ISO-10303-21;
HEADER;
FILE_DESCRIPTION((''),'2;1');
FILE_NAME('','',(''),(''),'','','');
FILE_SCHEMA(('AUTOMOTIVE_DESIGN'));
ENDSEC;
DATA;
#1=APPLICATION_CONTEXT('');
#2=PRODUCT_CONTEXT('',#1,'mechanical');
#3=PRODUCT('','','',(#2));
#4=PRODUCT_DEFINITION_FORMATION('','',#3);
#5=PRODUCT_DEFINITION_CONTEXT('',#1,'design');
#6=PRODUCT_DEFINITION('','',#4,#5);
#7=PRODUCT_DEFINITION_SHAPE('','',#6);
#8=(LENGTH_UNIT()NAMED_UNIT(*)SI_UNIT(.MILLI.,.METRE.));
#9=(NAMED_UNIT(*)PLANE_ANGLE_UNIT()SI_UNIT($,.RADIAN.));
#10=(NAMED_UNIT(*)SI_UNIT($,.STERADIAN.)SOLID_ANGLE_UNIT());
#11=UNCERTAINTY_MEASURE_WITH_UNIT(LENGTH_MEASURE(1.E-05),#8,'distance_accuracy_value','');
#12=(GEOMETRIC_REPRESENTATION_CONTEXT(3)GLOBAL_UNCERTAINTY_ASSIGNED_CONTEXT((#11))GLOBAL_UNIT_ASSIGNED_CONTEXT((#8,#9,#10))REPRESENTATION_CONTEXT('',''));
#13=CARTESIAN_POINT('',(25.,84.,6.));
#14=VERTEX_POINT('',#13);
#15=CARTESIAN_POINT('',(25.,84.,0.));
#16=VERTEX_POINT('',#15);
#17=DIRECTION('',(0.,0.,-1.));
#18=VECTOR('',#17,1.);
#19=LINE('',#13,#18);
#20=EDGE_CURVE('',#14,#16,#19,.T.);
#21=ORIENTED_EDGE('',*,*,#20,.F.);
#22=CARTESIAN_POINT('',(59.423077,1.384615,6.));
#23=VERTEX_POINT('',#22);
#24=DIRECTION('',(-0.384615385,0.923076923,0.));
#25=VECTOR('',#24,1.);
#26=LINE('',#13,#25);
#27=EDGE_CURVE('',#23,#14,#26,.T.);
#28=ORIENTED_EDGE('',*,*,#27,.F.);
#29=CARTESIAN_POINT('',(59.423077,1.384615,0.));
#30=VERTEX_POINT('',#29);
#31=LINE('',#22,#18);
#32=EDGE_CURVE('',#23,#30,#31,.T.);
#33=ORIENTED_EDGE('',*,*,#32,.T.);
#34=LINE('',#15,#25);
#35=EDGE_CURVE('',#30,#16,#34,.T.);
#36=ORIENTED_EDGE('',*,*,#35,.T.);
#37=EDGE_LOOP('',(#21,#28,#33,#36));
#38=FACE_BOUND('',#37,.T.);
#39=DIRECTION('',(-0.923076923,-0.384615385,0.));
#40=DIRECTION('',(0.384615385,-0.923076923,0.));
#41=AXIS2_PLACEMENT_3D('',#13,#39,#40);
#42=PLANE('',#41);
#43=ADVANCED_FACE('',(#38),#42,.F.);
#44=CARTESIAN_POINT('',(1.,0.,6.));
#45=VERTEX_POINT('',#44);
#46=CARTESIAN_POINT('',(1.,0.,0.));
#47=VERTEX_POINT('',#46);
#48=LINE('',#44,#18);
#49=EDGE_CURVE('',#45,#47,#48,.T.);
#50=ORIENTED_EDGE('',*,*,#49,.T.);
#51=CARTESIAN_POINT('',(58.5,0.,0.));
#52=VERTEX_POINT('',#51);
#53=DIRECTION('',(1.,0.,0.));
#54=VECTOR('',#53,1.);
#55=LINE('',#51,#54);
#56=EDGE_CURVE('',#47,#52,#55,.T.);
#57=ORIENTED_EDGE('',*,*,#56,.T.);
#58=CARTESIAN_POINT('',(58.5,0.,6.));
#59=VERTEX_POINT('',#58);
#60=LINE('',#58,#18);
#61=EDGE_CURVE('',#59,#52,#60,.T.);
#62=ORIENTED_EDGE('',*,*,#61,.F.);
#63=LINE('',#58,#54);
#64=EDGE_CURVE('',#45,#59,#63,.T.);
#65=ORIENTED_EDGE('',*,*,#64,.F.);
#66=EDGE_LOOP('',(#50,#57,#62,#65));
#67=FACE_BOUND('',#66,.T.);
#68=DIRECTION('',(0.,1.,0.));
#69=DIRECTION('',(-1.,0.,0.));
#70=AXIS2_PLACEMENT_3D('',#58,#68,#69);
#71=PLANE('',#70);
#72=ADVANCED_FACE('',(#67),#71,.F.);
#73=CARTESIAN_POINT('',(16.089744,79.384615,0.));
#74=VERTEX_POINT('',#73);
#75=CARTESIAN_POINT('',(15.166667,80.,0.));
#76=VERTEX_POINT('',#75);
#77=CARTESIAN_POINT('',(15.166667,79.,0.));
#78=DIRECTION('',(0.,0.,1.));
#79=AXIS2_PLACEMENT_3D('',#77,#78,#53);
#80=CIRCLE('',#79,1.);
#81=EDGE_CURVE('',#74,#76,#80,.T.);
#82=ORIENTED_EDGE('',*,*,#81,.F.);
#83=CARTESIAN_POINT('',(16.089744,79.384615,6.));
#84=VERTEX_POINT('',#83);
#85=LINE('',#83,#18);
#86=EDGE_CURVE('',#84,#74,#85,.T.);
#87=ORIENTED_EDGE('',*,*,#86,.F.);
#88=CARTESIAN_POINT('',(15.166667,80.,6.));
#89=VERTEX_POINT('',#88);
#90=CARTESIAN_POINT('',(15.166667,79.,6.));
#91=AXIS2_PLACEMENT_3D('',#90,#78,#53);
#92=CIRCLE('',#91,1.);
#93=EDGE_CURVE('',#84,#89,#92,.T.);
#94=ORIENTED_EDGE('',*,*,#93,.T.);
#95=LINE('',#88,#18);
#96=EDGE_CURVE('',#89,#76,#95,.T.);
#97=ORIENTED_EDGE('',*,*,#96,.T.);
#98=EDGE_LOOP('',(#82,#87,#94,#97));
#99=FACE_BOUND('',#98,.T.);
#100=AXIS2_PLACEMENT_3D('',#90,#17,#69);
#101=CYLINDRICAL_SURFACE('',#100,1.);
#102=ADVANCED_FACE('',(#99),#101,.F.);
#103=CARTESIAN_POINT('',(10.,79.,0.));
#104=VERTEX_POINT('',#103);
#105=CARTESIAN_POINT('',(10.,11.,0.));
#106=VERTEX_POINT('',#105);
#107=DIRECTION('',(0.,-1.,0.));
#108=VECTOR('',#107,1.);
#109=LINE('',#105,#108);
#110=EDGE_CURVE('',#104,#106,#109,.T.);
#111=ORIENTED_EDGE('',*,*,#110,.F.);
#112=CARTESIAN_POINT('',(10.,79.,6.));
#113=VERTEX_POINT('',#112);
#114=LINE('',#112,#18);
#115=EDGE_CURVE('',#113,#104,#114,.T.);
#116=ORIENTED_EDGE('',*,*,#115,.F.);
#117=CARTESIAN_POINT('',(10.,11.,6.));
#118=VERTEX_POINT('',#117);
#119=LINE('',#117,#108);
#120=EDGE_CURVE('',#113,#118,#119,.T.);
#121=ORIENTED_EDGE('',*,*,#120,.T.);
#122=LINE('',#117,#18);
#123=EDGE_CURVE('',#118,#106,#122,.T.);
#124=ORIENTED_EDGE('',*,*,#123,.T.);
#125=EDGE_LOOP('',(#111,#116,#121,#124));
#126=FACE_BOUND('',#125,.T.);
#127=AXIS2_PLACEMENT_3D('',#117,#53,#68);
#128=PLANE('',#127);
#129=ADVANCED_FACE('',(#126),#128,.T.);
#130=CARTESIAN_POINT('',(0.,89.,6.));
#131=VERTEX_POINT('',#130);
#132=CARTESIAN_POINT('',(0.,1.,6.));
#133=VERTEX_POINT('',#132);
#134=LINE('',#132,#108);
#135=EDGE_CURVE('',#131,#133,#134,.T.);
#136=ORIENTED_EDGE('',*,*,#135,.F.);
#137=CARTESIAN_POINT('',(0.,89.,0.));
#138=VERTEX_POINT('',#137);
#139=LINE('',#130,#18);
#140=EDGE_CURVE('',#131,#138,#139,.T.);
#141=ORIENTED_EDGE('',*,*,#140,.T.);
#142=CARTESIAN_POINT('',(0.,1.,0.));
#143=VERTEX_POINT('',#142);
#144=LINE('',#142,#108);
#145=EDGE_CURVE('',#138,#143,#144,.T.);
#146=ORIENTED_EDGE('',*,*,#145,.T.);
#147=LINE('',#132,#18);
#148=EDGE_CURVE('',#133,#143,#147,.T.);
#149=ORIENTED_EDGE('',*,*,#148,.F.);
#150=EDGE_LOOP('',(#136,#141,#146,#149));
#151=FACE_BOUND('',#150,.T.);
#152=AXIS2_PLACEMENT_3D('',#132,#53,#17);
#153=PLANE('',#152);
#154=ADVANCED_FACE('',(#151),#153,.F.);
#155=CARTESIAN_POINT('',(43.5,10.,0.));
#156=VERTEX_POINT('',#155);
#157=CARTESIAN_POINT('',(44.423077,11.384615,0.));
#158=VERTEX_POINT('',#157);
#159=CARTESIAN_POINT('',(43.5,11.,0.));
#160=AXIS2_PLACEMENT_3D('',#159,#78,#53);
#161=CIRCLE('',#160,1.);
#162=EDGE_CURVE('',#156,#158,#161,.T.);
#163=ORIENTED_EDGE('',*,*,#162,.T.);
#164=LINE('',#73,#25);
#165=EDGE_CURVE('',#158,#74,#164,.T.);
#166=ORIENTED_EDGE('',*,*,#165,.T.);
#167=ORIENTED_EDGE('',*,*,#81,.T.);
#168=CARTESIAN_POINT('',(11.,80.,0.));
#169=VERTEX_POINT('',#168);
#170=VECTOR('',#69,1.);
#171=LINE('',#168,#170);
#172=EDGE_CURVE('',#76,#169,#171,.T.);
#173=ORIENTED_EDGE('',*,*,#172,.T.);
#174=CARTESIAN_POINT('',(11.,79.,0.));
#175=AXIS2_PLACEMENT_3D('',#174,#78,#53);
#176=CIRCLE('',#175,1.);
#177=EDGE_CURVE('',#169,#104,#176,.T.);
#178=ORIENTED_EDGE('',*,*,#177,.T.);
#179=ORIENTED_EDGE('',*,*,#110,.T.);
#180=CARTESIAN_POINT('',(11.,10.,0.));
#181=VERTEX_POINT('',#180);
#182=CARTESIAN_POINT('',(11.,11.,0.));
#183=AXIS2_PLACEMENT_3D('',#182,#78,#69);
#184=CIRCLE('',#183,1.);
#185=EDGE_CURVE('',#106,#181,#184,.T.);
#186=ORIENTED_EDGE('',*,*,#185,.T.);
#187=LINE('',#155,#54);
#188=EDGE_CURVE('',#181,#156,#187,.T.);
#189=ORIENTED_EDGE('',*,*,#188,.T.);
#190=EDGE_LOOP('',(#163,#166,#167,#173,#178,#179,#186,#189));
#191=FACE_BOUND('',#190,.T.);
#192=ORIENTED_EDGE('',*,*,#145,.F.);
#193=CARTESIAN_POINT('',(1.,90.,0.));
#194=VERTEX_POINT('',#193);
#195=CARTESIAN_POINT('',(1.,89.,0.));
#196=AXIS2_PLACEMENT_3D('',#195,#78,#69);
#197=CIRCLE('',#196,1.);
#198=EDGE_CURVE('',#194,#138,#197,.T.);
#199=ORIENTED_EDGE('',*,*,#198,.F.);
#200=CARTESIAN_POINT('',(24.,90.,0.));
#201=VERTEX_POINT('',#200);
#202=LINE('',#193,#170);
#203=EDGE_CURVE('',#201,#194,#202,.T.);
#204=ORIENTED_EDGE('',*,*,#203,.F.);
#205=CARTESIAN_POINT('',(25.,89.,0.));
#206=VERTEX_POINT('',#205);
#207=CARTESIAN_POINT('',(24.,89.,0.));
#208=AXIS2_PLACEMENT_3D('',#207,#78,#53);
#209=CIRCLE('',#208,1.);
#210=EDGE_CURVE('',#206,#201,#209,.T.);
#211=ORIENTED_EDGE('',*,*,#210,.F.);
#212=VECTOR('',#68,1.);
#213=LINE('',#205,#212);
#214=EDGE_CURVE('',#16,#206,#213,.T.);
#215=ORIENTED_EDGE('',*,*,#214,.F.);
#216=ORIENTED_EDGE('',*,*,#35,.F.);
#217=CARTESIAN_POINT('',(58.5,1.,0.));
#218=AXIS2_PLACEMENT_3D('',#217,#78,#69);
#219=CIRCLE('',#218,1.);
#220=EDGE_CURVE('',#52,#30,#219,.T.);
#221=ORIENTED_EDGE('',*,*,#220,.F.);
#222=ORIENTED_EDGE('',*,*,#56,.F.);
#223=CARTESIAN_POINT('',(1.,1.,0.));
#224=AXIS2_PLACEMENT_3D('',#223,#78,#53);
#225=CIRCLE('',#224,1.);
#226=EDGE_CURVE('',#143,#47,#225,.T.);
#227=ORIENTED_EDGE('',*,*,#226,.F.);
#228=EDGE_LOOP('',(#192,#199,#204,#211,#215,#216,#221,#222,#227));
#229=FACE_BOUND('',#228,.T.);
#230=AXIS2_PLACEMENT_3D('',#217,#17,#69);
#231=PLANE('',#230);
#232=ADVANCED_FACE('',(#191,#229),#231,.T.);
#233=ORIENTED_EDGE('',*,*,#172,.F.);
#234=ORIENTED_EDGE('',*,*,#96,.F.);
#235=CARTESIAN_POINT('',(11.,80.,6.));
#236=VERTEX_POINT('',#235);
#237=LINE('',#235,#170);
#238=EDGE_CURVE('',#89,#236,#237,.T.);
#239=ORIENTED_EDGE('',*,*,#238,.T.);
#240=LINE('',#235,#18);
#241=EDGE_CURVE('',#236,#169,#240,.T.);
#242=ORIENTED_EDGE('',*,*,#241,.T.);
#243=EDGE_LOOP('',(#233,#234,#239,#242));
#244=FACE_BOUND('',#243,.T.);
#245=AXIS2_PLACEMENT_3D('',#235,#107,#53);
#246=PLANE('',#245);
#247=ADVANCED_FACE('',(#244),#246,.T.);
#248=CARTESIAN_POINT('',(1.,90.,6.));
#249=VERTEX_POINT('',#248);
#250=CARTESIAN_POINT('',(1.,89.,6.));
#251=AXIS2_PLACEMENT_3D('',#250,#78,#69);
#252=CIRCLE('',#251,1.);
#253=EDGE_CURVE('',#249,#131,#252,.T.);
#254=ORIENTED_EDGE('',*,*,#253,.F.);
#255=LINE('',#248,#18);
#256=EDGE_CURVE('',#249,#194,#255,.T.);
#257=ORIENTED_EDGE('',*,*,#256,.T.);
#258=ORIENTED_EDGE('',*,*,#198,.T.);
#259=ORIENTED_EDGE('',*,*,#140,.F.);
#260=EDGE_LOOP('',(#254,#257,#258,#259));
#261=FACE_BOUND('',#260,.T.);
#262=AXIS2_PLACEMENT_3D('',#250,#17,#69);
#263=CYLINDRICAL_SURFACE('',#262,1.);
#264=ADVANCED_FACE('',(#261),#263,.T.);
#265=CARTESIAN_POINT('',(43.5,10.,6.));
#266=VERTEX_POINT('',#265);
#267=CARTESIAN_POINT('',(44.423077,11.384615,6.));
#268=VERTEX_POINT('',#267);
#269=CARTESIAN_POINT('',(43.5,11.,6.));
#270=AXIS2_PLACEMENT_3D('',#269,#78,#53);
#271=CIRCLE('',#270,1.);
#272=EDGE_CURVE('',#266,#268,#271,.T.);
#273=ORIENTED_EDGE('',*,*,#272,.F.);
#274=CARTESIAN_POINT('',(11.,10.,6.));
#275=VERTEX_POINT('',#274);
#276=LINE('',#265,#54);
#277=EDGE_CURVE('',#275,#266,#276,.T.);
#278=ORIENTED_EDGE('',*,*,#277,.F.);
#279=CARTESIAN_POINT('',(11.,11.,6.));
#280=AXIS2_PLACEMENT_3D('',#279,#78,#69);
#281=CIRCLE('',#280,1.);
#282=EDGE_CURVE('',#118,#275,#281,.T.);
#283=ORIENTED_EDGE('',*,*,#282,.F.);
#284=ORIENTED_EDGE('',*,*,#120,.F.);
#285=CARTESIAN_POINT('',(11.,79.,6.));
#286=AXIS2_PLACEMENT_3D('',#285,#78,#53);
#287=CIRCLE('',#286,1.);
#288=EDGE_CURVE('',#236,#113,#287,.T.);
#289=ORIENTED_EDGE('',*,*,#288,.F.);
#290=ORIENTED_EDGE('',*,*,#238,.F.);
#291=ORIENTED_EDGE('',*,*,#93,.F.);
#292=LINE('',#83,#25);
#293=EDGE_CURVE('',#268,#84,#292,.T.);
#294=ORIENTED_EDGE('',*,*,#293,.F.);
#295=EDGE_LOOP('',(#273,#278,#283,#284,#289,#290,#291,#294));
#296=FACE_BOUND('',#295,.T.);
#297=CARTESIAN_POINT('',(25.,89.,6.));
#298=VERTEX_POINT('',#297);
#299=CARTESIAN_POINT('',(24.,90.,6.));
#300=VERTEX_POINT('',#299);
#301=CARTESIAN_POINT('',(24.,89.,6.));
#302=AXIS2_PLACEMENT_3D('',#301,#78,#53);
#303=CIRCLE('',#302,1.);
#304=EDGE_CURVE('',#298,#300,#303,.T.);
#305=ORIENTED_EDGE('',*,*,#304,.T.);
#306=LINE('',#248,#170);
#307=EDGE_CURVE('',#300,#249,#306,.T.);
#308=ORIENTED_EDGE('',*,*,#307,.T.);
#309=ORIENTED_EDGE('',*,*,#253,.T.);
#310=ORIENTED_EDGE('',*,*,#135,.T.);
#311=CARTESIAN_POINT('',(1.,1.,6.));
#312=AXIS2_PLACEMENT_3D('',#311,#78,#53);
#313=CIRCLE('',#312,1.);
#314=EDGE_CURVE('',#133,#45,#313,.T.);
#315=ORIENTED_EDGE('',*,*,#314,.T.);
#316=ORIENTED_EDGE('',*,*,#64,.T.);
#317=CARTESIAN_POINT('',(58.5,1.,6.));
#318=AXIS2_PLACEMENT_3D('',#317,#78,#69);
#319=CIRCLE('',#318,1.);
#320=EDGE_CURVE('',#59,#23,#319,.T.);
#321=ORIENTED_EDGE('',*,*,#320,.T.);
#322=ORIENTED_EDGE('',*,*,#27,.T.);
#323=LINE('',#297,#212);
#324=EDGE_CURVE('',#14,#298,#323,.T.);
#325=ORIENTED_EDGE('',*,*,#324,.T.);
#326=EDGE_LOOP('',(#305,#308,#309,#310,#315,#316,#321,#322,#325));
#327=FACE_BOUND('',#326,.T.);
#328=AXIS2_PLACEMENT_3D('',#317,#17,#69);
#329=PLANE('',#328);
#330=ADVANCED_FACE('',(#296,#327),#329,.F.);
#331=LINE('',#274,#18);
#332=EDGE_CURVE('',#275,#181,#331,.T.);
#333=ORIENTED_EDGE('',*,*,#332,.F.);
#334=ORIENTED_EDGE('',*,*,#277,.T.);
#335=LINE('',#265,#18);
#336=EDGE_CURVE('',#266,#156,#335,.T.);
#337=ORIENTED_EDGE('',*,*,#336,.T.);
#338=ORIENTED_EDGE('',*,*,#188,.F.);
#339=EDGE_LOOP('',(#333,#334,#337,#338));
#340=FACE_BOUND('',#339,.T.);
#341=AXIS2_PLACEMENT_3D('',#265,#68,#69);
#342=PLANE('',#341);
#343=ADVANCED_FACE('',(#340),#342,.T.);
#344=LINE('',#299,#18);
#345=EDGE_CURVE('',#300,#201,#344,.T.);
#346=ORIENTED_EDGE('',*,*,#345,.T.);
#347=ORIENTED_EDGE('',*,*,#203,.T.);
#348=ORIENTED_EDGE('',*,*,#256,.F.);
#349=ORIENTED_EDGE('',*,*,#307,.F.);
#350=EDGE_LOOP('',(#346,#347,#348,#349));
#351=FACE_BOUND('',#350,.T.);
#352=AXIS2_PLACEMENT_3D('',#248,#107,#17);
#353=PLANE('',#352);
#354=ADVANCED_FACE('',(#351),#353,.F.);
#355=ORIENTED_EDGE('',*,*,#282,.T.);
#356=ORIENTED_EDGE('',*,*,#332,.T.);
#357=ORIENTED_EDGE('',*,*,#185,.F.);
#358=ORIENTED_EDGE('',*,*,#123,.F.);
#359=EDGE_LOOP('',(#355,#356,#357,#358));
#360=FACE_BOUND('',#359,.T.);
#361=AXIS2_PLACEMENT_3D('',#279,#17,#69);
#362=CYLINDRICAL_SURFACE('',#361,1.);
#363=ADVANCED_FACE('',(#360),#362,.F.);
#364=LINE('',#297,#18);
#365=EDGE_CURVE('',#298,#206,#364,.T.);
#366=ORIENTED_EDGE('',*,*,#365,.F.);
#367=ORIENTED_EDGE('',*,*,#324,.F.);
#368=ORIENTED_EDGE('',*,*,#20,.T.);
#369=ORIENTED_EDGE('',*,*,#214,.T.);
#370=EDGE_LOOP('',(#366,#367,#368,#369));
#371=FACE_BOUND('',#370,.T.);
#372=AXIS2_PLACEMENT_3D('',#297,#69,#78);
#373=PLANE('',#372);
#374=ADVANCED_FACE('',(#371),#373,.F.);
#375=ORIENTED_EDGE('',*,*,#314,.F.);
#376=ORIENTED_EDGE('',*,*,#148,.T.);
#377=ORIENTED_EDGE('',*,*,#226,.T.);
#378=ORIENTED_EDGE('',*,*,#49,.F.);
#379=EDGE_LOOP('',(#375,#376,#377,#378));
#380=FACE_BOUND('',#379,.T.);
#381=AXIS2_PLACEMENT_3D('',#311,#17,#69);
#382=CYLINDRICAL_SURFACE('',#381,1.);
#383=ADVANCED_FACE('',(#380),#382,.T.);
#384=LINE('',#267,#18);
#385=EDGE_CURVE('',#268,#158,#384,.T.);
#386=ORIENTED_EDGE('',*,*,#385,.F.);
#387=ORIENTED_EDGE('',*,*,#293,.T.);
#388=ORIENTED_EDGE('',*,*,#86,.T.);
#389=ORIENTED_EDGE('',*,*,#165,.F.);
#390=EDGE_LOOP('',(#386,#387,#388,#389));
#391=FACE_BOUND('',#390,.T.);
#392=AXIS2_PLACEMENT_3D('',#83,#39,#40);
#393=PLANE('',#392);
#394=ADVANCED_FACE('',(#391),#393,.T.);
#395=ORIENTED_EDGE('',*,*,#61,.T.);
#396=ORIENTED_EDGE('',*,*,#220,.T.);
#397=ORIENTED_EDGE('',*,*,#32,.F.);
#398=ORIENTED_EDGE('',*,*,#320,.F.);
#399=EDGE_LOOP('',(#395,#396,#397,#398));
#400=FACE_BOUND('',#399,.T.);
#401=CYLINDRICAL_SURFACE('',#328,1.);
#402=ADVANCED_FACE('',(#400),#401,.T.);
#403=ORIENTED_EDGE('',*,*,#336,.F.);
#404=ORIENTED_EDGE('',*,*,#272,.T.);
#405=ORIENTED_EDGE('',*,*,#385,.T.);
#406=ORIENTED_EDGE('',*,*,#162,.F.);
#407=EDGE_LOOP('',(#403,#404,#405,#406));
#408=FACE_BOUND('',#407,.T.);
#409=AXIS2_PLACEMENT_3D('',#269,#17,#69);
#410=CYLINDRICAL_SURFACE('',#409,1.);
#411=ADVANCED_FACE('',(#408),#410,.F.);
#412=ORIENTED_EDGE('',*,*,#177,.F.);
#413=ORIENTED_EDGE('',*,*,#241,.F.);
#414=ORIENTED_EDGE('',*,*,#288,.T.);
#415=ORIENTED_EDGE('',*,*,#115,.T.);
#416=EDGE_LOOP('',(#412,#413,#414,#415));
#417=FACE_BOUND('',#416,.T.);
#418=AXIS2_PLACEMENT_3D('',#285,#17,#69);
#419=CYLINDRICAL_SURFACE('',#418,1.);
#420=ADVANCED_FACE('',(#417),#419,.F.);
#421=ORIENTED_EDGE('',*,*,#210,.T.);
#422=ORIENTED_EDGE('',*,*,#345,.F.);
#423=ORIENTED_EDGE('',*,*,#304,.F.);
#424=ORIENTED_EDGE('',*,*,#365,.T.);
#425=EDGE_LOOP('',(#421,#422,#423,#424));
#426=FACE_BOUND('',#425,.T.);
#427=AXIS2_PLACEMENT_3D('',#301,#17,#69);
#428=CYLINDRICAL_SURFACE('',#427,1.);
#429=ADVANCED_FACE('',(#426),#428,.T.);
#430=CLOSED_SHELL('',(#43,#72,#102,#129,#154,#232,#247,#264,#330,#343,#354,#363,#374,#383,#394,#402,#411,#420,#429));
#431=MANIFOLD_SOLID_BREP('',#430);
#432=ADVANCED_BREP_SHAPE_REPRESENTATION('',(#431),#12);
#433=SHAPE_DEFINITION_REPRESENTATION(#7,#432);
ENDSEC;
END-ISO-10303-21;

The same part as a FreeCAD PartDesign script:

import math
import FreeCAD as App
import Part
import Sketcher

V = App.Vector
Q = App.Units.Quantity

doc = App.newDocument("Part")
body = doc.addObject("PartDesign::Body", "Body")

sketch1 = doc.addObject("Sketcher::SketchObject", "Sketch")
body.addObject(sketch1)
sketch1.AttachmentSupport = (doc.XY_Plane, [""])
sketch1.MapMode = "FlatFace"
sketch1.addGeometry(Part.LineSegment(V(0, 89, 0), V(0, 1, 0)), False)
sketch1.addGeometry(Part.ArcOfCircle(Part.Circle(V(1, 1, 0), V(0, 0, 1), 1), math.radians(-180), math.radians(-90)), False)
sketch1.addGeometry(Part.LineSegment(V(1, 0, 0), V(58.5, 0, 0)), False)
sketch1.addGeometry(Part.ArcOfCircle(Part.Circle(V(58.5, 1, 0), V(0, 0, 1), 1), math.radians(-90), math.radians(22.619865)), False)
sketch1.addGeometry(Part.LineSegment(V(59.423077, 1.384615, 0), V(25, 84, 0)), False)
sketch1.addGeometry(Part.LineSegment(V(25, 84, 0), V(25, 89, 0)), False)
sketch1.addGeometry(Part.ArcOfCircle(Part.Circle(V(24, 89, 0), V(0, 0, 1), 1), math.radians(0), math.radians(90)), False)
sketch1.addGeometry(Part.LineSegment(V(24, 90, 0), V(1, 90, 0)), False)
sketch1.addGeometry(Part.ArcOfCircle(Part.Circle(V(1, 89, 0), V(0, 0, 1), 1), math.radians(90), math.radians(180)), False)
sketch1.addGeometry(Part.LineSegment(V(10, 11, 0), V(10, 79, 0)), False)
sketch1.addGeometry(Part.ArcOfCircle(Part.Circle(V(11, 79, 0), V(0, 0, 1), 1), math.radians(90), math.radians(180)), False)
sketch1.addGeometry(Part.LineSegment(V(11, 80, 0), V(15.166667, 80, 0)), False)
sketch1.addGeometry(Part.ArcOfCircle(Part.Circle(V(15.166667, 79, 0), V(0, 0, 1), 1), math.radians(22.619865), math.radians(90)), False)
sketch1.addGeometry(Part.LineSegment(V(16.089744, 79.384615, 0), V(44.423077, 11.384615, 0)), False)
sketch1.addGeometry(Part.ArcOfCircle(Part.Circle(V(43.5, 11, 0), V(0, 0, 1), 1), math.radians(-90), math.radians(22.619865)), False)
sketch1.addGeometry(Part.LineSegment(V(43.5, 10, 0), V(11, 10, 0)), False)
sketch1.addGeometry(Part.ArcOfCircle(Part.Circle(V(11, 11, 0), V(0, 0, 1), 1), math.radians(-180), math.radians(-90)), False)
sketch1.addConstraint(Sketcher.Constraint("Tangent", 0, 2, 1, 1))
sketch1.addConstraint(Sketcher.Constraint("Tangent", 1, 2, 2, 1))
sketch1.addConstraint(Sketcher.Constraint("Tangent", 2, 2, 3, 1))
sketch1.addConstraint(Sketcher.Constraint("Tangent", 3, 2, 4, 1))
sketch1.addConstraint(Sketcher.Constraint("Coincident", 4, 2, 5, 1))
sketch1.addConstraint(Sketcher.Constraint("Tangent", 5, 2, 6, 1))
sketch1.addConstraint(Sketcher.Constraint("Tangent", 6, 2, 7, 1))
sketch1.addConstraint(Sketcher.Constraint("Tangent", 7, 2, 8, 1))
sketch1.addConstraint(Sketcher.Constraint("Tangent", 8, 2, 0, 1))
sketch1.addConstraint(Sketcher.Constraint("Tangent", 9, 2, 10, 2))
sketch1.addConstraint(Sketcher.Constraint("Tangent", 10, 1, 11, 1))
sketch1.addConstraint(Sketcher.Constraint("Tangent", 11, 2, 12, 2))
sketch1.addConstraint(Sketcher.Constraint("Tangent", 12, 1, 13, 1))
sketch1.addConstraint(Sketcher.Constraint("Tangent", 13, 2, 14, 2))
sketch1.addConstraint(Sketcher.Constraint("Tangent", 14, 1, 15, 1))
sketch1.addConstraint(Sketcher.Constraint("Tangent", 15, 2, 16, 2))
sketch1.addConstraint(Sketcher.Constraint("Tangent", 16, 1, 9, 1))
sketch1.addConstraint(Sketcher.Constraint("Vertical", 0))
sketch1.addConstraint(Sketcher.Constraint("Horizontal", 2))
sketch1.addConstraint(Sketcher.Constraint("Vertical", 5))
sketch1.addConstraint(Sketcher.Constraint("Horizontal", 7))
sketch1.addConstraint(Sketcher.Constraint("Vertical", 9))
sketch1.addConstraint(Sketcher.Constraint("Horizontal", 11))
sketch1.addConstraint(Sketcher.Constraint("Horizontal", 15))
sketch1.addConstraint(Sketcher.Constraint("Equal", 1, 3))
sketch1.addConstraint(Sketcher.Constraint("Equal", 3, 6))
sketch1.addConstraint(Sketcher.Constraint("Equal", 6, 8))
sketch1.addConstraint(Sketcher.Constraint("Equal", 8, 10))
sketch1.addConstraint(Sketcher.Constraint("Equal", 10, 12))
sketch1.addConstraint(Sketcher.Constraint("Equal", 12, 14))
sketch1.addConstraint(Sketcher.Constraint("Equal", 14, 16))
sketch1.addConstraint(Sketcher.Constraint("PointOnObject", 0, 2, -2))
sketch1.addConstraint(Sketcher.Constraint("PointOnObject", 1, 2, -1))
sketch1.addConstraint(Sketcher.Constraint("Parallel", 4, 13))
sketch1.addConstraint(Sketcher.Constraint("Radius", 1, Q("1 mm")))
sketch1.addConstraint(Sketcher.Constraint("DistanceX", 7, 2, 7, 1, Q("23 mm")))
sketch1.addConstraint(Sketcher.Constraint("DistanceY", 0, 2, 0, 1, Q("88 mm")))
sketch1.addConstraint(Sketcher.Constraint("DistanceY", 5, 1, 5, 2, Q("5 mm")))
sketch1.addConstraint(Sketcher.Constraint("DistanceY", 9, 1, 9, 2, Q("68 mm")))
sketch1.addConstraint(Sketcher.Constraint("DistanceX", 2, 1, 2, 2, Q("57.5 mm")))
sketch1.addConstraint(Sketcher.Constraint("DistanceX", 15, 2, 15, 1, Q("32.5 mm")))
sketch1.addConstraint(Sketcher.Constraint("DistanceX", -1, 1, 10, 3, Q("11 mm")))
sketch1.addConstraint(Sketcher.Constraint("DistanceY", -1, 1, 10, 3, Q("79 mm")))
pad1 = doc.addObject("PartDesign::Pad", "Pad")
body.addObject(pad1)
pad1.Profile = sketch1
pad1.Length = 6

doc.recompute()
